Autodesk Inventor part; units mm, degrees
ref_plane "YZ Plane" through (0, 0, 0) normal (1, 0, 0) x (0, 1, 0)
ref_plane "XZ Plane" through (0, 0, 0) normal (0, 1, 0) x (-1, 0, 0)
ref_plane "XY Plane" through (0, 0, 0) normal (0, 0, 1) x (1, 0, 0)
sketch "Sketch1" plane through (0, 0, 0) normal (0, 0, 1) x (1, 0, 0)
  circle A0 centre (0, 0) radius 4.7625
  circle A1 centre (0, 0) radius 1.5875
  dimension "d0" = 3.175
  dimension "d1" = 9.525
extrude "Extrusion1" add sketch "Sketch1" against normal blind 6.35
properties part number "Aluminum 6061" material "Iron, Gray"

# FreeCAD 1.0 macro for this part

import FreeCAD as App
import Part
import Sketcher
from FreeCAD import Vector
Q = App.Units.Quantity

doc = App.newDocument("Part")
body = doc.addObject("PartDesign::Body", "Body")

# Sketch on XY plane
sketch1 = body.newObject("Sketcher::SketchObject", "Sketch")
sketch1.AttachmentSupport = (doc.getObject("XY_Plane"), [""])
sketch1.MapMode = "FlatFace"
sketch1.addGeometry(Part.Circle(Vector(0, 0, 0), Vector(0, 0, 1), 4.8), False)
sketch1.addGeometry(Part.Circle(Vector(0, 0, 0), Vector(0, 0, 1), 1.6), False)
sketch1.addConstraint(Sketcher.Constraint("Coincident", 0, 3, -1, 1))
sketch1.addConstraint(Sketcher.Constraint("Coincident", 1, 3, -1, 1))
sketch1.addConstraint(Sketcher.Constraint("Diameter", 0, Q("0.375 in")))
sketch1.addConstraint(Sketcher.Constraint("Diameter", 1, Q("0.125 in")))
pad1 = body.newObject("PartDesign::Pad", "Pad")
pad1.Profile = sketch1
pad1.Length = Q("0.25 in")
pad1.Reversed = True

doc.recompute()
